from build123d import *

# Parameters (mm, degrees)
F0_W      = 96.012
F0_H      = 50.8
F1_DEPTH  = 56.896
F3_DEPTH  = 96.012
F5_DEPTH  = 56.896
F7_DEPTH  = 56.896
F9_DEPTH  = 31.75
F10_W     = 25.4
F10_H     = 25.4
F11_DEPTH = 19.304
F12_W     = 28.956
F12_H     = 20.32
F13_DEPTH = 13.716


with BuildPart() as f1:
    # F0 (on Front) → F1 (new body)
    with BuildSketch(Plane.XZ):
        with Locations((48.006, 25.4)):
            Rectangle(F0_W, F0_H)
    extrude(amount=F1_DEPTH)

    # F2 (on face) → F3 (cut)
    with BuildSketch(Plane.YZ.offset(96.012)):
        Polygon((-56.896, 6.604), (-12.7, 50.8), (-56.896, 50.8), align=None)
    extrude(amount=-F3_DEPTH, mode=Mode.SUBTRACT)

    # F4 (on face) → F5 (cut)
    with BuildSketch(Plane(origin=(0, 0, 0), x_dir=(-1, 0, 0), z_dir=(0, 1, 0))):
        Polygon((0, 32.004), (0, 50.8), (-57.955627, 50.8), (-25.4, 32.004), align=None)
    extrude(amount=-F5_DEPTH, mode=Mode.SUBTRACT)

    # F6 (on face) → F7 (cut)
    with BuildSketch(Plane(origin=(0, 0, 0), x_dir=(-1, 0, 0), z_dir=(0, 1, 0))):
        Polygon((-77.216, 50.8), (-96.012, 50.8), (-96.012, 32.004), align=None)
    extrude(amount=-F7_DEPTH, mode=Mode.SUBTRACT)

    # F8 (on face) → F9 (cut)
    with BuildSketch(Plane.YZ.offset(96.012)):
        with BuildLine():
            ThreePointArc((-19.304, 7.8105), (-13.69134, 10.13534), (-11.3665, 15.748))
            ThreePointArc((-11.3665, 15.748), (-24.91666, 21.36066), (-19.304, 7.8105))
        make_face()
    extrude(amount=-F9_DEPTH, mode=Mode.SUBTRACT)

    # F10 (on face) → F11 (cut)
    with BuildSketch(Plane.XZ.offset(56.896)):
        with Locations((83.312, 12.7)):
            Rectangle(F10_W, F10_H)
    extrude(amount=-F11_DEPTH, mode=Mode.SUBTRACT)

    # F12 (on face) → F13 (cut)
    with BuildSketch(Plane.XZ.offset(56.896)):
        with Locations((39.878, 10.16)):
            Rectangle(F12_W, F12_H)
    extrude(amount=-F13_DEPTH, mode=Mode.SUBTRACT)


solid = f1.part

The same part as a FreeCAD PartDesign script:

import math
import FreeCAD as App
import Part
import Sketcher

V = App.Vector
Q = App.Units.Quantity

doc = App.newDocument("Part")
body = doc.addObject("PartDesign::Body", "Body")

# Sketch on XZ plane
sketch1 = body.newObject("Sketcher::SketchObject", "Sketch")
sketch1.AttachmentSupport = (doc.getObject("XZ_Plane"), [""])
sketch1.MapMode = "FlatFace"
sketch1.addGeometry([
    Part.LineSegment(V(0, 51, 0), V(0, 0, 0)),
    Part.LineSegment(V(0, 0, 0), V(96, 0, 0)),
    Part.LineSegment(V(96, 0, 0), V(96, 51, 0)),
    Part.LineSegment(V(96, 51, 0), V(0, 51, 0)),
], False)
sketch1.addConstraint([
    Sketcher.Constraint("Coincident", 0, 2, 1, 1),
    Sketcher.Constraint("Coincident", 1, 2, 2, 1),
    Sketcher.Constraint("Coincident", 2, 2, 3, 1),
    Sketcher.Constraint("Coincident", 3, 2, 0, 1),
    Sketcher.Constraint("Vertical", 0),
    Sketcher.Constraint("Horizontal", 1),
    Sketcher.Constraint("Vertical", 2),
    Sketcher.Constraint("Horizontal", 3),
    Sketcher.Constraint("Coincident", 0, 2, -1, 1),
    Sketcher.Constraint("DistanceY", 0, 2, 0, 1, Q("2 in")),
    Sketcher.Constraint("DistanceX", 1, 1, 1, 2, Q("3.78 in")),
])
pad1 = body.newObject("PartDesign::Pad", "Pad")
pad1.Profile = sketch1
pad1.Length = Q("2.24 in")

# Sketch on YZ plane
sketch2 = body.newObject("Sketcher::SketchObject", "Sketch001")
sketch2.AttachmentSupport = (doc.getObject("YZ_Plane"), [""])
sketch2.MapMode = "FlatFace"
sketch2.AttachmentOffset = App.Placement(V(0, 0, 3.78 * 25.4), App.Rotation())
sketch2.addGeometry([
    Part.LineSegment(V(-57, 7, 0), V(-13, 51, 0)),
    Part.LineSegment(V(-13, 51, 0), V(-57, 51, 0)),
    Part.LineSegment(V(-57, 51, 0), V(-57, 7, 0)),
], False)
sketch2.addConstraint([
    Sketcher.Constraint("Coincident", 0, 2, 1, 1),
    Sketcher.Constraint("Coincident", 1, 2, 2, 1),
    Sketcher.Constraint("Coincident", 2, 2, 0, 1),
    Sketcher.Constraint("Horizontal", 1),
    Sketcher.Constraint("Vertical", 2),
    Sketcher.Constraint("Equal", 1, 2),
    Sketcher.Constraint("DistanceY", -1, 1, 0, 2, Q("2 in")),
    Sketcher.Constraint("DistanceX", 1, 2, 1, 1, Q("1.74 in")),
    Sketcher.Constraint("DistanceX", 0, 2, -1, 1, Q("0.5 in")),
])
pocket1 = body.newObject("PartDesign::Pocket", "Pocket")
pocket1.Profile = sketch2
pocket1.Length = Q("3.78 in")

# Sketch on XZ plane
sketch3 = body.newObject("Sketcher::SketchObject", "Sketch002")
sketch3.AttachmentSupport = (doc.getObject("XZ_Plane"), [""])
sketch3.MapMode = "FlatFace"
sketch3.addGeometry([
    Part.LineSegment(V(0, 32, 0), V(0, 51, 0)),
    Part.LineSegment(V(0, 51, 0), V(58, 51, 0)),
    Part.LineSegment(V(58, 51, 0), V(25, 32, 0)),
    Part.LineSegment(V(25, 32, 0), V(0, 32, 0)),
], False)
sketch3.addConstraint([
    Sketcher.Constraint("Coincident", 0, 2, 1, 1),
    Sketcher.Constraint("Coincident", 1, 2, 2, 1),
    Sketcher.Constraint("Coincident", 2, 2, 3, 1),
    Sketcher.Constraint("Coincident", 3, 2, 0, 1),
    Sketcher.Constraint("Vertical", 0),
    Sketcher.Constraint("Horizontal", 1),
    Sketcher.Constraint("Horizontal", 3),
    Sketcher.Constraint("PointOnObject", 0, 2, -2),
    Sketcher.Constraint("DistanceX", 3, 2, 3, 1, Q("1 in")),
    Sketcher.Constraint("DistanceY", -1, 1, 0, 2, Q("2 in")),
    Sketcher.Constraint("Angle", 2, Q("-150 deg")),
    Sketcher.Constraint("DistanceY", 0, 1, 0, 2, Q("0.74 in")),
])
pocket2 = body.newObject("PartDesign::Pocket", "Pocket001")
pocket2.Profile = sketch3
pocket2.Length = Q("2.24 in")
pocket2.Reversed = True

# Sketch on XZ plane
sketch4 = body.newObject("Sketcher::SketchObject", "Sketch003")
sketch4.AttachmentSupport = (doc.getObject("XZ_Plane"), [""])
sketch4.MapMode = "FlatFace"
sketch4.addGeometry([
    Part.LineSegment(V(77, 51, 0), V(96, 51, 0)),
    Part.LineSegment(V(96, 51, 0), V(96, 32, 0)),
    Part.LineSegment(V(96, 32, 0), V(77, 51, 0)),
], False)
sketch4.addConstraint([
    Sketcher.Constraint("Coincident", 0, 2, 1, 1),
    Sketcher.Constraint("Coincident", 1, 2, 2, 1),
    Sketcher.Constraint("Coincident", 2, 2, 0, 1),
    Sketcher.Constraint("Horizontal", 0),
    Sketcher.Constraint("Vertical", 1),
    Sketcher.Constraint("Equal", 0, 1),
    Sketcher.Constraint("DistanceY", -1, 1, 0, 2, Q("2 in")),
    Sketcher.Constraint("DistanceX", 0, 1, 0, 2, Q("0.74 in")),
    Sketcher.Constraint("DistanceX", -1, 1, 0, 2, Q("3.78 in")),
])
pocket3 = body.newObject("PartDesign::Pocket", "Pocket002")
pocket3.Profile = sketch4
pocket3.Length = Q("2.24 in")
pocket3.Reversed = True

# Sketch on YZ plane
sketch5 = body.newObject("Sketcher::SketchObject", "Sketch004")
sketch5.AttachmentSupport = (doc.getObject("YZ_Plane"), [""])
sketch5.MapMode = "FlatFace"
sketch5.AttachmentOffset = App.Placement(V(0, 0, 3.78 * 25.4), App.Rotation())
sketch5.addGeometry([
    Part.ArcOfCircle(Part.Circle(V(-19, 16, 0), V(0, 0, 1), 8), math.radians(-90), math.radians(0)),
    Part.ArcOfCircle(Part.Circle(V(-19, 16, 0), V(0, 0, 1), 8), math.radians(0), math.radians(270)),
], False)
sketch5.addConstraint([
    Sketcher.Constraint("Tangent", 0, 1, 1, 2),
    Sketcher.Constraint("Coincident", 1, 1, 0, 2),
    Sketcher.Constraint("Horizontal", 0, 3, 1, 1),
    Sketcher.Constraint("Vertical", 1, 3, 0, 1),
    Sketcher.Constraint("Radius", 0, Q("0.3125 in")),
    Sketcher.Constraint("DistanceX", 0, 3, -1, 1, Q("0.76 in")),
    Sketcher.Constraint("DistanceY", -1, 1, 0, 3, Q("0.62 in")),
])
pocket4 = body.newObject("PartDesign::Pocket", "Pocket003")
pocket4.Profile = sketch5
pocket4.Length = Q("1.25 in")

# Sketch on XZ plane
sketch6 = body.newObject("Sketcher::SketchObject", "Sketch005")
sketch6.AttachmentSupport = (doc.getObject("XZ_Plane"), [""])
sketch6.MapMode = "FlatFace"
sketch6.AttachmentOffset = App.Placement(V(0, 0, 2.24 * 25.4), App.Rotation())
sketch6.addGeometry([
    Part.LineSegment(V(71, 25, 0), V(71, 0, 0)),
    Part.LineSegment(V(71, 0, 0), V(96, 0, 0)),
    Part.LineSegment(V(96, 0, 0), V(96, 25, 0)),
    Part.LineSegment(V(96, 25, 0), V(71, 25, 0)),
], False)
sketch6.addConstraint([
    Sketcher.Constraint("Coincident", 0, 2, 1, 1),
    Sketcher.Constraint("Coincident", 1, 2, 2, 1),
    Sketcher.Constraint("Coincident", 2, 2, 3, 1),
    Sketcher.Constraint("Coincident", 3, 2, 0, 1),
    Sketcher.Constraint("Vertical", 0),
    Sketcher.Constraint("Horizontal", 1),
    Sketcher.Constraint("Vertical", 2),
    Sketcher.Constraint("Horizontal", 3),
    Sketcher.Constraint("PointOnObject", 0, 2, -1),
    Sketcher.Constraint("Equal", 3, 0),
    Sketcher.Constraint("DistanceX", 1, 1, 1, 2, Q("1 in")),
    Sketcher.Constraint("DistanceX", -1, 1, 0, 2, Q("2.78 in")),
])
pocket5 = body.newObject("PartDesign::Pocket", "Pocket004")
pocket5.Profile = sketch6
pocket5.Length = Q("0.76 in")

# Sketch on XZ plane
sketch7 = body.newObject("Sketcher::SketchObject", "Sketch006")
sketch7.AttachmentSupport = (doc.getObject("XZ_Plane"), [""])
sketch7.MapMode = "FlatFace"
sketch7.AttachmentOffset = App.Placement(V(0, 0, 2.24 * 25.4), App.Rotation())
sketch7.addGeometry([
    Part.LineSegment(V(25, 20, 0), V(25, 0, 0)),
    Part.LineSegment(V(25, 0, 0), V(54, 0, 0)),
    Part.LineSegment(V(54, 0, 0), V(54, 20, 0)),
    Part.LineSegment(V(54, 20, 0), V(25, 20, 0)),
], False)
sketch7.addConstraint([
    Sketcher.Constraint("Coincident", 0, 2, 1, 1),
    Sketcher.Constraint("Coincident", 1, 2, 2, 1),
    Sketcher.Constraint("Coincident", 2, 2, 3, 1),
    Sketcher.Constraint("Coincident", 3, 2, 0, 1),
    Sketcher.Constraint("Vertical", 0),
    Sketcher.Constraint("Horizontal", 1),
    Sketcher.Constraint("Vertical", 2),
    Sketcher.Constraint("Horizontal", 3),
    Sketcher.Constraint("PointOnObject", 0, 2, -1),
    Sketcher.Constraint("DistanceY", 0, 2, 0, 1, Q("0.8 in")),
    Sketcher.Constraint("DistanceX", -1, 1, 0, 2, Q("1 in")),
    Sketcher.Constraint("DistanceX", 1, 1, 1, 2, Q("1.14 in")),
])
pocket6 = body.newObject("PartDesign::Pocket", "Pocket005")
pocket6.Profile = sketch7
pocket6.Length = Q("0.54 in")

doc.recompute()
